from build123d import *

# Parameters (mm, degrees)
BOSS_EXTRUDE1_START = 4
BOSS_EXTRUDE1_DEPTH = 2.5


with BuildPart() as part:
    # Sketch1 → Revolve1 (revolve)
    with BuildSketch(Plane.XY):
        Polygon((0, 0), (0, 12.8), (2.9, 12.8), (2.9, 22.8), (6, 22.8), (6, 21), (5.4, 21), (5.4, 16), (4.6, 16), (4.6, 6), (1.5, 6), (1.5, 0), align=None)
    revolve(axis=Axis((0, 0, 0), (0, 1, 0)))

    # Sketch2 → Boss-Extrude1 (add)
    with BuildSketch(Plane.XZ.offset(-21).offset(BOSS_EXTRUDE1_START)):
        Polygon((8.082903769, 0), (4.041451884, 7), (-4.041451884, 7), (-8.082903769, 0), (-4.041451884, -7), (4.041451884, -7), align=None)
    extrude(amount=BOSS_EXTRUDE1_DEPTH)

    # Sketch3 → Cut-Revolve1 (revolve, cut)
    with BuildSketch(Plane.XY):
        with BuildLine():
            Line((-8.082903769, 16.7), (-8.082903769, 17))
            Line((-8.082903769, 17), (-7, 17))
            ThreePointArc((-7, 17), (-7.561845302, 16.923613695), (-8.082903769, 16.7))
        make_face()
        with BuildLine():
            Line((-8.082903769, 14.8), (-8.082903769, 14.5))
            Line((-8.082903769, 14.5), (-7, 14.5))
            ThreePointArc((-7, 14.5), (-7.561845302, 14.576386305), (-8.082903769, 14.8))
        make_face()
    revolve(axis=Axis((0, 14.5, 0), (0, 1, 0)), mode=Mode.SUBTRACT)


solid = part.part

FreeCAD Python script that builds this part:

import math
import FreeCAD as App
import Part
import Sketcher

V = App.Vector
Q = App.Units.Quantity

doc = App.newDocument("Part")
body = doc.addObject("PartDesign::Body", "Body")

sketch1 = body.newObject("Sketcher::SketchObject", "Sketch")
sketch1.AttachmentSupport = (doc.getObject("XY_Plane"), [""])
sketch1.MapMode = "FlatFace"
sketch1.addGeometry([
    Part.LineSegment(V(0, 12.8, 0), V(0, 0, 0)),
    Part.LineSegment(V(0, 0, 0), V(1.5, 0, 0)),
    Part.LineSegment(V(1.5, 0, 0), V(1.5, 6, 0)),
    Part.LineSegment(V(1.5, 6, 0), V(4.6, 6, 0)),
    Part.LineSegment(V(4.6, 6, 0), V(4.6, 16, 0)),
    Part.LineSegment(V(4.6, 16, 0), V(5.4, 16, 0)),
    Part.LineSegment(V(5.4, 16, 0), V(5.4, 21, 0)),
    Part.LineSegment(V(5.4, 21, 0), V(6, 21, 0)),
    Part.LineSegment(V(6, 21, 0), V(6, 22.8, 0)),
    Part.LineSegment(V(6, 22.8, 0), V(2.9, 22.8, 0)),
    Part.LineSegment(V(2.9, 22.8, 0), V(2.9, 12.8, 0)),
    Part.LineSegment(V(2.9, 12.8, 0), V(0, 12.8, 0)),
], False)
sketch1.addConstraint([
    Sketcher.Constraint("Coincident", 0, 2, 1, 1),
    Sketcher.Constraint("Coincident", 1, 2, 2, 1),
    Sketcher.Constraint("Coincident", 2, 2, 3, 1),
    Sketcher.Constraint("Coincident", 3, 2, 4, 1),
    Sketcher.Constraint("Coincident", 4, 2, 5, 1),
    Sketcher.Constraint("Coincident", 5, 2, 6, 1),
    Sketcher.Constraint("Coincident", 6, 2, 7, 1),
    Sketcher.Constraint("Coincident", 7, 2, 8, 1),
    Sketcher.Constraint("Coincident", 8, 2, 9, 1),
    Sketcher.Constraint("Coincident", 9, 2, 10, 1),
    Sketcher.Constraint("Coincident", 10, 2, 11, 1),
    Sketcher.Constraint("Coincident", 11, 2, 0, 1),
    Sketcher.Constraint("Vertical", 0),
    Sketcher.Constraint("Horizontal", 1),
    Sketcher.Constraint("Vertical", 2),
    Sketcher.Constraint("Horizontal", 3),
    Sketcher.Constraint("Vertical", 4),
    Sketcher.Constraint("Horizontal", 5),
    Sketcher.Constraint("Vertical", 6),
    Sketcher.Constraint("Horizontal", 7),
    Sketcher.Constraint("Vertical", 8),
    Sketcher.Constraint("Horizontal", 9),
    Sketcher.Constraint("Vertical", 10),
    Sketcher.Constraint("Horizontal", 11),
    Sketcher.Constraint("Coincident", 0, 2, -1, 1),
    Sketcher.Constraint("Equal", 3, 9),
    Sketcher.Constraint("Equal", 4, 10),
    Sketcher.Constraint("DistanceY", 2, 1, 2, 2, Q("6 mm")),
    Sketcher.Constraint("DistanceY", 4, 1, 4, 2, Q("10 mm")),
    Sketcher.Constraint("DistanceY", 6, 1, 6, 2, Q("5 mm")),
    Sketcher.Constraint("DistanceX", 1, 1, 1, 2, Q("1.5 mm")),
    Sketcher.Constraint("DistanceX", 3, 1, 3, 2, Q("3.1 mm")),
    Sketcher.Constraint("DistanceX", 5, 1, 5, 2, Q("0.8 mm")),
    Sketcher.Constraint("DistanceX", 7, 1, 7, 2, Q("0.6 mm")),
    Sketcher.Constraint("DistanceY", 0, 2, 0, 1, Q("12.8 mm")),
])
revolution = body.newObject("PartDesign::Revolution", "Revolution")
revolution.Profile = sketch1
revolution.ReferenceAxis = (sketch1, ["V_Axis"])
revolution.Angle = 360

sketch2 = body.newObject("Sketcher::SketchObject", "Sketch001")
sketch2.AttachmentSupport = (doc.getObject("XZ_Plane"), [""])
sketch2.MapMode = "FlatFace"
sketch2.AttachmentOffset = App.Placement(V(0, 0, -17), App.Rotation())
sketch2.addGeometry([
    Part.LineSegment(V(8, 0, 0), V(4, 7, 0)),
    Part.LineSegment(V(4, 7, 0), V(-4, 7, 0)),
    Part.LineSegment(V(-4, 7, 0), V(-8, 0, 0)),
    Part.LineSegment(V(-8, 0, 0), V(-4, -7, 0)),
    Part.LineSegment(V(-4, -7, 0), V(4, -7, 0)),
    Part.LineSegment(V(4, -7, 0), V(8, 0, 0)),
], False)
sketch2.addConstraint([
    Sketcher.Constraint("Coincident", 0, 2, 1, 1),
    Sketcher.Constraint("Coincident", 1, 2, 2, 1),
    Sketcher.Constraint("Coincident", 2, 2, 3, 1),
    Sketcher.Constraint("Coincident", 3, 2, 4, 1),
    Sketcher.Constraint("Coincident", 4, 2, 5, 1),
    Sketcher.Constraint("Coincident", 5, 2, 0, 1),
    Sketcher.Constraint("Horizontal", 1),
    Sketcher.Constraint("Horizontal", 4),
    Sketcher.Constraint("Symmetric", 0, 2, 3, 2, -1, 1),
    Sketcher.Constraint("Symmetric", 2, 2, 5, 2, -1, 1),
    Sketcher.Constraint("PointOnObject", 2, 2, -1),
    Sketcher.Constraint("Parallel", 2, 5),
    Sketcher.Constraint("Vertical", 1, 2, 3, 2),
    Sketcher.Constraint("Angle", 0, Q("120 deg")),
    Sketcher.Constraint("DistanceY", -1, 1, 0, 2, Q("7 mm")),
    Sketcher.Constraint("DistanceX", 1, 2, 1, 1, Q("8.082904 mm")),
])
pad1 = body.newObject("PartDesign::Pad", "Pad")
pad1.Profile = sketch2
pad1.Length = 2.5

sketch3 = body.newObject("Sketcher::SketchObject", "Sketch002")
sketch3.AttachmentSupport = (doc.getObject("XY_Plane"), [""])
sketch3.MapMode = "FlatFace"
sketch3.addGeometry([
    Part.LineSegment(V(-8.08, 17, 0), V(-8.08, 16.7, 0)),
    Part.ArcOfCircle(Part.Circle(V(-7, 14.9, 0), V(0, 0, 1), 2.1), math.radians(90), math.radians(121)),
    Part.LineSegment(V(-7, 17, 0), V(-8.08, 17, 0)),
    Part.LineSegment(V(-8.08, 14.8, 0), V(-8.08, 14.5, 0)),
    Part.LineSegment(V(-8.08, 14.5, 0), V(-7, 14.5, 0)),
    Part.ArcOfCircle(Part.Circle(V(-7, 16.6, 0), V(0, 0, 1), 2.1), math.radians(-121), math.radians(-90)),
], False)
sketch3.addConstraint([
    Sketcher.Constraint("Coincident", 0, 2, 1, 2),
    Sketcher.Constraint("Tangent", 1, 1, 2, 1),
    Sketcher.Constraint("Coincident", 2, 2, 0, 1),
    Sketcher.Constraint("Coincident", 3, 2, 4, 1),
    Sketcher.Constraint("Tangent", 4, 2, 5, 2),
    Sketcher.Constraint("Coincident", 5, 1, 3, 1),
    Sketcher.Constraint("Vertical", 0),
    Sketcher.Constraint("Horizontal", 2),
    Sketcher.Constraint("Vertical", 3),
    Sketcher.Constraint("Horizontal", 4),
    Sketcher.Constraint("Equal", 1, 5),
    Sketcher.Constraint("Vertical", 1, 3, 5, 3),
    Sketcher.Constraint("Vertical", 2, 2, 3, 2),
    Sketcher.Constraint("DistanceY", 0, 2, 0, 1, Q("0.3 mm")),
    Sketcher.Constraint("DistanceX", 1, 3, -1, 1, Q("7 mm")),
    Sketcher.Constraint("DistanceY", -1, 1, 1, 1, Q("17 mm")),
    Sketcher.Constraint("DistanceY", -1, 1, 3, 2, Q("14.5 mm")),
    Sketcher.Constraint("Radius", 1, Q("2.104468 mm")),
])
groove = body.newObject("PartDesign::Groove", "Groove")
groove.Profile = sketch3
groove.ReferenceAxis = (sketch3, ["V_Axis"])
groove.Angle = 360

doc.recompute()
